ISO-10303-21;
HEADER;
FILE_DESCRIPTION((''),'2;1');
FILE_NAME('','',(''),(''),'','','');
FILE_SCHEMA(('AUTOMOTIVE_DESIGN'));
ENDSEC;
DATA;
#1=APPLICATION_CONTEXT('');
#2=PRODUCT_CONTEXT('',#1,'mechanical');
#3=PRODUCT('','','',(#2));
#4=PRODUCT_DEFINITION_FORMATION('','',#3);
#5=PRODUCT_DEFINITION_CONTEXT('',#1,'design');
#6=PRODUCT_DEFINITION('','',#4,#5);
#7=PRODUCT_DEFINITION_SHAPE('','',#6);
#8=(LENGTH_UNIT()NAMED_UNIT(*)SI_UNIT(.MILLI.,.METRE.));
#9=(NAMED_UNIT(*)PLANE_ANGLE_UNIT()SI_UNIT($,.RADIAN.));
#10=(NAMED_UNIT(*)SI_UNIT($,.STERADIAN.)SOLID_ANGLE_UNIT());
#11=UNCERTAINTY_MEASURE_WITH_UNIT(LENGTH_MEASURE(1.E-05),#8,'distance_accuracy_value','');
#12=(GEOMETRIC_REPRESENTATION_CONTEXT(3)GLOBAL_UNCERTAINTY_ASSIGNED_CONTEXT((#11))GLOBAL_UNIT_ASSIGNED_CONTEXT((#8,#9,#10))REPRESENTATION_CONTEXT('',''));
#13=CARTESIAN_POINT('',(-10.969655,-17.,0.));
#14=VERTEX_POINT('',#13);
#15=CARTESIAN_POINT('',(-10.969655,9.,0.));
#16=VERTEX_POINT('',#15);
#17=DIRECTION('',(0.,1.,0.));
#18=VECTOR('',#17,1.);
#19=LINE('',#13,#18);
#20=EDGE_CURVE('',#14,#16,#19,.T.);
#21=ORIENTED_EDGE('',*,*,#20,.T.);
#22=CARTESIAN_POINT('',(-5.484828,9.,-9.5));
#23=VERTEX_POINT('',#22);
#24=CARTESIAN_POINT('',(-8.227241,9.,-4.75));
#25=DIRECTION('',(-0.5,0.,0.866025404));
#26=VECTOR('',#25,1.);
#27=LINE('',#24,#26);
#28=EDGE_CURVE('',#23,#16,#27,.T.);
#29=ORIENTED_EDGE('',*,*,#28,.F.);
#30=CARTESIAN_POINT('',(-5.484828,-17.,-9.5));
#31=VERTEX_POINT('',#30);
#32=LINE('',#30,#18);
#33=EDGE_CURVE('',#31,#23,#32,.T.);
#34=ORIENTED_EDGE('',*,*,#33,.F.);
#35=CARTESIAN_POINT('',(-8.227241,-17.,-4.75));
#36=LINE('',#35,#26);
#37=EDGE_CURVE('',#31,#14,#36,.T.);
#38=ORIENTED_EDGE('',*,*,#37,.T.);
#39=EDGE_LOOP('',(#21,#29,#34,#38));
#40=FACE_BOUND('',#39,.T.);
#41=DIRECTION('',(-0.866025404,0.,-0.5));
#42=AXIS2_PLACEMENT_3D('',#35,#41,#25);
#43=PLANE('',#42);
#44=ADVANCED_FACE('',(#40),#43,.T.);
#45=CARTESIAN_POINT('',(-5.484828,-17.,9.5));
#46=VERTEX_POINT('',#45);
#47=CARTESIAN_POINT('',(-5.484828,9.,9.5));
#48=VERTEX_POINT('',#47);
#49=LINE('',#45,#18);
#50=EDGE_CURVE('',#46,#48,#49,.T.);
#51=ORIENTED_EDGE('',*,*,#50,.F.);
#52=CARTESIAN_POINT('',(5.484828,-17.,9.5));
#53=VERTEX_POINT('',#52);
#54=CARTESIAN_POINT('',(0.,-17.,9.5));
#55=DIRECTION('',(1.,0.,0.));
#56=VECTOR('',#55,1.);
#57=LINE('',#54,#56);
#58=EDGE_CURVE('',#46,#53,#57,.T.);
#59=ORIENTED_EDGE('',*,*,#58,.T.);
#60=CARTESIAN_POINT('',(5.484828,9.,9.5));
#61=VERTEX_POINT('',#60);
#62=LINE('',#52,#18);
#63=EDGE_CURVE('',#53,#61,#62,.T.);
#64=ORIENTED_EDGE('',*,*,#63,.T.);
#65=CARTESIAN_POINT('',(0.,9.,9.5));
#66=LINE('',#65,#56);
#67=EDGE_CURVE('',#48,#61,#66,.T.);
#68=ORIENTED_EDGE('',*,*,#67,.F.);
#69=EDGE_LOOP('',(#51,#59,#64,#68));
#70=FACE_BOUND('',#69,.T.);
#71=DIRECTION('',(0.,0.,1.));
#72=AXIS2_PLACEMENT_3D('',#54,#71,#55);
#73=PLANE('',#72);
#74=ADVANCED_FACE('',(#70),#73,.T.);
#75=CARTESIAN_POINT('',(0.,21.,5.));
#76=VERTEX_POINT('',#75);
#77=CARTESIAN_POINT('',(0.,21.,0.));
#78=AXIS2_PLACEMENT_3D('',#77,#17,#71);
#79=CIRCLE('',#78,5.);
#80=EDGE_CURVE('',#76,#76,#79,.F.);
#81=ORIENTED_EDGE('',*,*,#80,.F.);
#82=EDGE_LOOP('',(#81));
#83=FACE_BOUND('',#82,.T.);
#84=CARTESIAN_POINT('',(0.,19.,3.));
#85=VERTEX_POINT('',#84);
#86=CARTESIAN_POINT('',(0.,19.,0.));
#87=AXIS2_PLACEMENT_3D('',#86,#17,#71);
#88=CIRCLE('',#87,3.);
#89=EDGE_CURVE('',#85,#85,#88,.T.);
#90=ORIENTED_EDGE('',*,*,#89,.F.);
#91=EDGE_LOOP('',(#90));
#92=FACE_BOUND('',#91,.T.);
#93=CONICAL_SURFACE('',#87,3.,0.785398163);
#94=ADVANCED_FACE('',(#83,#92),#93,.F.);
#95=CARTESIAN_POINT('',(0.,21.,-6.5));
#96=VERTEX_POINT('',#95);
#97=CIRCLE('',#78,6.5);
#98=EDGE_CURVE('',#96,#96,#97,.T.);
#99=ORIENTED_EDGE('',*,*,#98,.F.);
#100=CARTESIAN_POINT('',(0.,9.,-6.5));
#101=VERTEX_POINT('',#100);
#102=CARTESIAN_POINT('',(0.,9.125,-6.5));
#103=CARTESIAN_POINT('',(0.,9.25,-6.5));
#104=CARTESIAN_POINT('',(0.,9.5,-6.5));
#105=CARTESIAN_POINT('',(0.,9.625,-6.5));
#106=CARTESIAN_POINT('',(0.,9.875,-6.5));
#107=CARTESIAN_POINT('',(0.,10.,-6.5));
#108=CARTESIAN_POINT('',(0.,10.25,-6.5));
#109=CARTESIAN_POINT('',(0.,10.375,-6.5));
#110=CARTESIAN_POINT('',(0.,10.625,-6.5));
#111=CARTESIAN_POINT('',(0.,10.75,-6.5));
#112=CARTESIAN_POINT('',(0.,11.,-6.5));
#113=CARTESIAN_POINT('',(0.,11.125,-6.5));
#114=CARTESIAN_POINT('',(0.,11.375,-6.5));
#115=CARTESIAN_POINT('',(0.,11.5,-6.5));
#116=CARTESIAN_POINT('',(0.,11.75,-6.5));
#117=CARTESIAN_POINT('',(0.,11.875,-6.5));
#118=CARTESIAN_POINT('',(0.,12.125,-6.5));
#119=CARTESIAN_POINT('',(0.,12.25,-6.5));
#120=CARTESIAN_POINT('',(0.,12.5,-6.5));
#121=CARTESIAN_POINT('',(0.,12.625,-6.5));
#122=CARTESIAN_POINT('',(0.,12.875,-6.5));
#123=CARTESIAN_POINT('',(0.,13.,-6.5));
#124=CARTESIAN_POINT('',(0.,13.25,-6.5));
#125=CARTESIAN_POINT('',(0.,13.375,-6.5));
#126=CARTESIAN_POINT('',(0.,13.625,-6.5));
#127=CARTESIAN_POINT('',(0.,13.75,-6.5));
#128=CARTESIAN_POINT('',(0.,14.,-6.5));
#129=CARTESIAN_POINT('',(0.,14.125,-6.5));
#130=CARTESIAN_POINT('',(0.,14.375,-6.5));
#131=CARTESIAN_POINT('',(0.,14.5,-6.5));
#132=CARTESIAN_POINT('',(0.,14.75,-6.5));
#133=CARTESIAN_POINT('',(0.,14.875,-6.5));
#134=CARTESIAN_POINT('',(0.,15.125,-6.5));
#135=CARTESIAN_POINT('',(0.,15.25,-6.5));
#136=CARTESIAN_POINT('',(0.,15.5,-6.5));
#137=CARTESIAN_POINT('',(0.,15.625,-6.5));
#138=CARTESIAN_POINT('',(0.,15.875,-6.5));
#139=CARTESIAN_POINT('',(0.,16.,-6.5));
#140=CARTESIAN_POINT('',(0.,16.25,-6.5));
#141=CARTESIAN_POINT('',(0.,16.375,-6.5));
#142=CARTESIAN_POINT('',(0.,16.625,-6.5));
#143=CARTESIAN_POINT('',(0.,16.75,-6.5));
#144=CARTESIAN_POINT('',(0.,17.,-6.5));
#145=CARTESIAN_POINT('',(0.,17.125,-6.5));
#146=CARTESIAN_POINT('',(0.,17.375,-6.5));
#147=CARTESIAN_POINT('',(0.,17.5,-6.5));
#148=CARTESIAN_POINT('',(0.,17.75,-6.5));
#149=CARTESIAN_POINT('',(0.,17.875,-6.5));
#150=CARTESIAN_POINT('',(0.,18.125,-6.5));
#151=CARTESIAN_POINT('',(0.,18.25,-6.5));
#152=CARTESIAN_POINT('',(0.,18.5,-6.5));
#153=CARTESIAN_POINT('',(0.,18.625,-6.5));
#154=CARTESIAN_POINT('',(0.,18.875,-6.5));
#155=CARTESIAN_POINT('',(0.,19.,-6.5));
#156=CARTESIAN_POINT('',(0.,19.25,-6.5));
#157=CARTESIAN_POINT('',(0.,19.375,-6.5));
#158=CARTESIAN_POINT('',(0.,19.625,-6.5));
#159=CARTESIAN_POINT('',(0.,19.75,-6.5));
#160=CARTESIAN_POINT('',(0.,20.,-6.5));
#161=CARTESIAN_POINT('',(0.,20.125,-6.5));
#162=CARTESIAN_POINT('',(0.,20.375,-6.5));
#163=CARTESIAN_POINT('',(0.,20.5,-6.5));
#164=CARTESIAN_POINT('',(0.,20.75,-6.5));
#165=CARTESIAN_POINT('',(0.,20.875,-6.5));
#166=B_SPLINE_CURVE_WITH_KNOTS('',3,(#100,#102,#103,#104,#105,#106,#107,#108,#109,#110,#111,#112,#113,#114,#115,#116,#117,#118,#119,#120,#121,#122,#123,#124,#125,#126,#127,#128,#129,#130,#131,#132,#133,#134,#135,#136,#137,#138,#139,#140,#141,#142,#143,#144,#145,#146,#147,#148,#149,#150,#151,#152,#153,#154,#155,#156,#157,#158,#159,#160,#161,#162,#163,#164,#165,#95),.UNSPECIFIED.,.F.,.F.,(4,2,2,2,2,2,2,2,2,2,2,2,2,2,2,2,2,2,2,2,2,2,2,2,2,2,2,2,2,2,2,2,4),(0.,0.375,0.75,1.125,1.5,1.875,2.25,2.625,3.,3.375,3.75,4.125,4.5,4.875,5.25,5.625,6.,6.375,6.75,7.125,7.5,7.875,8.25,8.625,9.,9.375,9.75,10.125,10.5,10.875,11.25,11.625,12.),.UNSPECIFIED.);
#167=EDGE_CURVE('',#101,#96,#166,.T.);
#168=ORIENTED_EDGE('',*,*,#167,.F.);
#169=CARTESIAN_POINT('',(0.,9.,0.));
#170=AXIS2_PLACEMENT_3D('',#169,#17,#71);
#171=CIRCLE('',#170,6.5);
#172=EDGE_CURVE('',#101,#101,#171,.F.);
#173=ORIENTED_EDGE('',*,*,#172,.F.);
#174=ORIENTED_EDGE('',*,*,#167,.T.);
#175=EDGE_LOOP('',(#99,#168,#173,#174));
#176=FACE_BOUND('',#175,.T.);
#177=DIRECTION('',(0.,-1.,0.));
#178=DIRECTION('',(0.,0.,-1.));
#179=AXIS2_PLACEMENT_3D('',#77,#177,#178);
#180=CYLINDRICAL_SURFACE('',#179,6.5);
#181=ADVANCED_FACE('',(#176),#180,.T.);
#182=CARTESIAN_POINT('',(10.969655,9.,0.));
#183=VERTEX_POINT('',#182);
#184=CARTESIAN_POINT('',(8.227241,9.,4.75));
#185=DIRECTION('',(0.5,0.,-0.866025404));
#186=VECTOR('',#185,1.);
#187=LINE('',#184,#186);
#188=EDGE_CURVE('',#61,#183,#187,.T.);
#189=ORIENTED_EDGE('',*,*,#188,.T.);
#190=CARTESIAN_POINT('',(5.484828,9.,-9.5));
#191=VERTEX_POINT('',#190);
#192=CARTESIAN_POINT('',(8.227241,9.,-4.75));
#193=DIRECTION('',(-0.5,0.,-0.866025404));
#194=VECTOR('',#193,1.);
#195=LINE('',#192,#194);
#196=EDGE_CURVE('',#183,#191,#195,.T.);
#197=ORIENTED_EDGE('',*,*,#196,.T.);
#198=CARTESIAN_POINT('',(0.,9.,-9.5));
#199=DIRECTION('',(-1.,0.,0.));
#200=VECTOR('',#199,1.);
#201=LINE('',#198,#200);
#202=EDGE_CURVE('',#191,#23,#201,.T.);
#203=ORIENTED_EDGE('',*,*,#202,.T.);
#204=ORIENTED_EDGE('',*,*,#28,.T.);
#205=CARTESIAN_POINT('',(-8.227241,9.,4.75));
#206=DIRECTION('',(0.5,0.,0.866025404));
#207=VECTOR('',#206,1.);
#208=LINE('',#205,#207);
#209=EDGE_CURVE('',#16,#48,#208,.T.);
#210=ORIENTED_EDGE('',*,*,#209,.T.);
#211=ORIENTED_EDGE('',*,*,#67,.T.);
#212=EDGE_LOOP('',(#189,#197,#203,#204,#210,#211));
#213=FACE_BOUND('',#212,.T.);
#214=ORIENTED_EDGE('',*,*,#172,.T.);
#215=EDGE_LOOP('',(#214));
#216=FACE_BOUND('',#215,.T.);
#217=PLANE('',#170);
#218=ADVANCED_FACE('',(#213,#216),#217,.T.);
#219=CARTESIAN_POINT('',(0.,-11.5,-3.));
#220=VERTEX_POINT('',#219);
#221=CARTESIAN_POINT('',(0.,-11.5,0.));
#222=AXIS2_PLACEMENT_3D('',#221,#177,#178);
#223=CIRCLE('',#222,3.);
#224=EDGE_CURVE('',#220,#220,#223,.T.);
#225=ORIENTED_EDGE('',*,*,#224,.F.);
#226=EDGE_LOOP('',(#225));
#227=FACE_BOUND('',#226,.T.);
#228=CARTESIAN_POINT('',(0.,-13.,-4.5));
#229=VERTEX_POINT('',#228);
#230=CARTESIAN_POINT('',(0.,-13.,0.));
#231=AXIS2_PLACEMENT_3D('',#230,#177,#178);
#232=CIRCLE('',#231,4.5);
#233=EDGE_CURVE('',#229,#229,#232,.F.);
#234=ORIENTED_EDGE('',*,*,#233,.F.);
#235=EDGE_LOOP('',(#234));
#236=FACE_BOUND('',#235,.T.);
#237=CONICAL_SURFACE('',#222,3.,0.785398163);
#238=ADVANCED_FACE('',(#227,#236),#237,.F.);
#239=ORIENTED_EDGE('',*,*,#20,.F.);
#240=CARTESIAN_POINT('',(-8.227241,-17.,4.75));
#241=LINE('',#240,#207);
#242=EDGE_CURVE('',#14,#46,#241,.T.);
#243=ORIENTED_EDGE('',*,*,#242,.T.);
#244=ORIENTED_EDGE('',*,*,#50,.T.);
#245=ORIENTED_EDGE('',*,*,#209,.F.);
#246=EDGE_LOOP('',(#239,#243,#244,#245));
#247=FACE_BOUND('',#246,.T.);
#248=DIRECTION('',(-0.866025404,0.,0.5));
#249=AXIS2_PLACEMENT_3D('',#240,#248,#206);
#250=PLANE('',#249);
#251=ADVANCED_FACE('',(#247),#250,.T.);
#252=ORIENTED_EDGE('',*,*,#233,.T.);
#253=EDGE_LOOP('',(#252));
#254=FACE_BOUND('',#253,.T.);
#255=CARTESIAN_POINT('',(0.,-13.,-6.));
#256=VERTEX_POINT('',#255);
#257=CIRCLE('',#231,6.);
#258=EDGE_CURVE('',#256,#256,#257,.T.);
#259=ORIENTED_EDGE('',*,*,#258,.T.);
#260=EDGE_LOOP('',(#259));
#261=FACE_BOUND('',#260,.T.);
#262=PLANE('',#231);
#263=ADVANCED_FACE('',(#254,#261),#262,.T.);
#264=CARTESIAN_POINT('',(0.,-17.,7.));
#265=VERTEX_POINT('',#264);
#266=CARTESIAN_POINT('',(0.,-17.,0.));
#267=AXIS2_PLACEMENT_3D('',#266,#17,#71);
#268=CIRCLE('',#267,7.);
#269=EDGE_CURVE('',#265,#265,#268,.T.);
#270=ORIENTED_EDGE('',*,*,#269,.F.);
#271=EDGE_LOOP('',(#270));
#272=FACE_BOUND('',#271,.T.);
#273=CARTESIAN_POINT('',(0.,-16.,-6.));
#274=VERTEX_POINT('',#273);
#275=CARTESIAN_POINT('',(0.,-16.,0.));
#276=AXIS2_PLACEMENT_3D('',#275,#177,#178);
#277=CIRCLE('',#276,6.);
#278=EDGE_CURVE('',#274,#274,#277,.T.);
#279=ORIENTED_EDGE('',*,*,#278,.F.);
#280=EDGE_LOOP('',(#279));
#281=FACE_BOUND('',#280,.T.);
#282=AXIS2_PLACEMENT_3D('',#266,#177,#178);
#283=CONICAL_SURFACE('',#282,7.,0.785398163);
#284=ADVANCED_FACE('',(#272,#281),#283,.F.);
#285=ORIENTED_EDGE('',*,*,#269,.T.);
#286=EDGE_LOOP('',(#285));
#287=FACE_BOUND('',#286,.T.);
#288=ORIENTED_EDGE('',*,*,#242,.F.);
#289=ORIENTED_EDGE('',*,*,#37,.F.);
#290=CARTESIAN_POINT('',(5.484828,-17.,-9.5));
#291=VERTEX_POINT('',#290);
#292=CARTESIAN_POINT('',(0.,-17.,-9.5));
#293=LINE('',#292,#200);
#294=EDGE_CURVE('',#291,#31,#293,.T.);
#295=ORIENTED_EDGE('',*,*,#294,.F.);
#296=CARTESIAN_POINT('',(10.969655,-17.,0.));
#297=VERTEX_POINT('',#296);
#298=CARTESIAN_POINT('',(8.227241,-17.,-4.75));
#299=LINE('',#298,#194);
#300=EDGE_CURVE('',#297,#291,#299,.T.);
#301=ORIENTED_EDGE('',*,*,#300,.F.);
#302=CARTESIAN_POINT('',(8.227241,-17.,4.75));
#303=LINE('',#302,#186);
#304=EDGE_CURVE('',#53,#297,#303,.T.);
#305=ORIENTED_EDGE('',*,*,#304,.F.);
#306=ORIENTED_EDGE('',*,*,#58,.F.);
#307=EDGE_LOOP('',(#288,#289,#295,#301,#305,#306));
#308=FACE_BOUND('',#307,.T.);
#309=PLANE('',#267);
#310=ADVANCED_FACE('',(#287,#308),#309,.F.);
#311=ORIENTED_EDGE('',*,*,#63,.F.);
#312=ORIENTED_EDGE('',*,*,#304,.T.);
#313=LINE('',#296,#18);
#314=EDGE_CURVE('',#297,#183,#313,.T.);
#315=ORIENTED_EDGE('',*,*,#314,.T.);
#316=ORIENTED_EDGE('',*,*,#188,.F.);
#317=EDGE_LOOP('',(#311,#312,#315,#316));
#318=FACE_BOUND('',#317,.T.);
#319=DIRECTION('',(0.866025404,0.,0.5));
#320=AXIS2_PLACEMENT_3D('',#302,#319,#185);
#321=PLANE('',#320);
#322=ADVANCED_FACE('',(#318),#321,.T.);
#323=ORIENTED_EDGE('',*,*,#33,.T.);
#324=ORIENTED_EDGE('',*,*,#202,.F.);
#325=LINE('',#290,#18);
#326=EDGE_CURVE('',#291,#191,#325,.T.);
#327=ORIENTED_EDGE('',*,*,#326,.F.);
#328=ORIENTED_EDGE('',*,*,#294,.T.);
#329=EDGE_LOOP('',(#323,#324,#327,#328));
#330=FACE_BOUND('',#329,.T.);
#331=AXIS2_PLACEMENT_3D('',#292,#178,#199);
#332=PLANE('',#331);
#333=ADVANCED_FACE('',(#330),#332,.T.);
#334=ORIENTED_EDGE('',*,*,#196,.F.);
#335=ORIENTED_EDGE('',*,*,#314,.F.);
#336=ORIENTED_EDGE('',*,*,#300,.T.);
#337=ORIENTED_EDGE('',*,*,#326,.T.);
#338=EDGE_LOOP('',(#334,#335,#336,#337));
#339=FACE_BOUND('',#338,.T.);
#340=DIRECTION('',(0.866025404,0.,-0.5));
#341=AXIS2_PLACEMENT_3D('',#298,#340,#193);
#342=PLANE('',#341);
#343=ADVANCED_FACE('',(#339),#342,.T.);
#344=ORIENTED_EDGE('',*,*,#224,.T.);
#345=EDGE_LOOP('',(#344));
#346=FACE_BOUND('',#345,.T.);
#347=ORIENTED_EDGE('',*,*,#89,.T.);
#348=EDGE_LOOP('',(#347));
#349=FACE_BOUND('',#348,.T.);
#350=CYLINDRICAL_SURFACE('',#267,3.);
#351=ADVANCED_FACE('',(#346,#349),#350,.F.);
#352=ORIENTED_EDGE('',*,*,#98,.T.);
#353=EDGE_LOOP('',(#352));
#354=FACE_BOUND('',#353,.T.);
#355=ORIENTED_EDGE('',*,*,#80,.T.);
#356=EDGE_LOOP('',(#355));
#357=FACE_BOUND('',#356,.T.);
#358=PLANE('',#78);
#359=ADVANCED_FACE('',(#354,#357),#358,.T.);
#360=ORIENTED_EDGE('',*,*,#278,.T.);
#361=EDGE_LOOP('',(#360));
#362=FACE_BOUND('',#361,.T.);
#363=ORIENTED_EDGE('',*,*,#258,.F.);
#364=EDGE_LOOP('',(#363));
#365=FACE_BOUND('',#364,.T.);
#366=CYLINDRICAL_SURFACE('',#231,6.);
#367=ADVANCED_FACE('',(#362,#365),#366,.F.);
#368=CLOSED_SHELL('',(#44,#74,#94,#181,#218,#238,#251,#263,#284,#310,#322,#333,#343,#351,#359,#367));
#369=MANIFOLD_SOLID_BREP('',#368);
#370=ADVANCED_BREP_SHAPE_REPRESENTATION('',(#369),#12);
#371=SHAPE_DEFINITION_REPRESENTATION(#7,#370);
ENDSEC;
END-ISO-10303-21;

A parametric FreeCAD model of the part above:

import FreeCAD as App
import Part
import Sketcher
from FreeCAD import Vector
Q = App.Units.Quantity


def edges_at(feature, points):
    """Names of the edges that pass closest to the given points."""
    edges = feature.Shape.Edges
    near = lambda p: min(range(len(edges)), key=lambda i: edges[i].distToShape(Part.Vertex(*p))[0])
    return sorted({f"Edge{near(p) + 1}" for p in points})


def add_polygon(sketch, points):
    """Adds a closed chain of lines whose ends are joined by coincident constraints."""
    first, n = sketch.GeometryCount, len(points)
    for a, b in zip(points, points[1:] + points[:1]):
        sketch.addGeometry(Part.LineSegment(App.Vector(*a, 0), App.Vector(*b, 0)), False)
    for i in range(n):
        sketch.addConstraint(Sketcher.Constraint("Coincident", first + i, 2, first + (i + 1) % n, 1))

doc = App.newDocument("Part")
body = doc.addObject("PartDesign::Body", "Body")

# Sketch on XZ plane
sketch1 = body.newObject("Sketcher::SketchObject", "Sketch")
sketch1.AttachmentSupport = (doc.getObject("XZ_Plane"), [""])
sketch1.MapMode = "FlatFace"
add_polygon(sketch1, [(5.5, -9.5), (-5.5, -9.5), (-11, 0), (-5.5, 9.5), (5.5, 9.5), (11, 0)])  # lines 0-5
sketch1.addGeometry(Part.Circle(Vector(0, 0, 0), Vector(0, 0, 1), 3), False)  # 6
sketch1.addConstraint([
    Sketcher.Constraint("Horizontal", 0),
    Sketcher.Constraint("Horizontal", 3),
    Sketcher.Constraint("Coincident", 6, 3, -1, 1),
    Sketcher.Constraint("Symmetric", 0, 2, 3, 2, -1, 1),
    Sketcher.Constraint("Symmetric", 1, 2, 4, 2, -1, 1),
    Sketcher.Constraint("PointOnObject", 1, 2, -1),
    Sketcher.Constraint("Parallel", 2, 5),
    Sketcher.Constraint("Vertical", 0, 2, 2, 2),
    Sketcher.Constraint("Diameter", 6, Q("6 mm")),
    Sketcher.Constraint("Angle", 1, Q("120 deg")),
    Sketcher.Constraint("DistanceY", 0, 2, 2, 2, Q("19 mm")),
    Sketcher.Constraint("DistanceX", 0, 2, 0, 1, Q("10.969655 mm")),
])
pad1 = body.newObject("PartDesign::Pad", "Pad")
pad1.Profile = sketch1
pad1.Type = "TwoLengths"
pad1.Length = 9
pad1.Length2 = 17
pad1.Reversed = True

# Sketch on XZ plane
sketch2 = body.newObject("Sketcher::SketchObject", "Sketch001")
sketch2.AttachmentSupport = (doc.getObject("XZ_Plane"), [""])
sketch2.MapMode = "FlatFace"
sketch2.addGeometry([
    Part.Circle(Vector(0, 0, 0), Vector(0, 0, 1), 6.5),
    Part.Circle(Vector(0, 0, 0), Vector(0, 0, 1), 3),
], False)
sketch2.addConstraint([
    Sketcher.Constraint("Coincident", 0, 3, -1, 1),
    Sketcher.Constraint("Coincident", 1, 3, -1, 1),
    Sketcher.Constraint("Diameter", 0, Q("13 mm")),
    Sketcher.Constraint("Diameter", 1, Q("6 mm")),
])
pad2 = body.newObject("PartDesign::Pad", "Pad001")
pad2.Profile = sketch2
pad2.Length = 21
pad2.Reversed = True
doc.recompute()

chamfer = body.newObject("PartDesign::Chamfer", "Chamfer")
chamfer.Base = (pad2, edges_at(pad2, [(0, 21, -3)]))
chamfer.Size = 2
doc.recompute()

chamfer2 = body.newObject("PartDesign::Chamfer", "Chamfer001")
chamfer2.Base = (chamfer, edges_at(chamfer, [(0, -17, -3)]))
chamfer2.Size = 4

# Sketch on XZ plane
sketch3 = body.newObject("Sketcher::SketchObject", "Sketch002")
sketch3.AttachmentSupport = (doc.getObject("XZ_Plane"), [""])
sketch3.MapMode = "FlatFace"
sketch3.AttachmentOffset = App.Placement(Vector(0, 0, 17), App.Rotation())
sketch3.addGeometry(Part.Circle(Vector(0, 0, 0), Vector(0, 0, 1), 6), False)
sketch3.addConstraint([
    Sketcher.Constraint("Coincident", 0, 3, -1, 1),
    Sketcher.Constraint("Diameter", 0, Q("12 mm")),
])
pocket1 = body.newObject("PartDesign::Pocket", "Pocket")
pocket1.Profile = sketch3
pocket1.Length = 4
doc.recompute()

chamfer3 = body.newObject("PartDesign::Chamfer", "Chamfer002")
chamfer3.Base = (pocket1, edges_at(pocket1, [(0, -13, -3)]))
chamfer3.Size = 1.5

doc.recompute()
